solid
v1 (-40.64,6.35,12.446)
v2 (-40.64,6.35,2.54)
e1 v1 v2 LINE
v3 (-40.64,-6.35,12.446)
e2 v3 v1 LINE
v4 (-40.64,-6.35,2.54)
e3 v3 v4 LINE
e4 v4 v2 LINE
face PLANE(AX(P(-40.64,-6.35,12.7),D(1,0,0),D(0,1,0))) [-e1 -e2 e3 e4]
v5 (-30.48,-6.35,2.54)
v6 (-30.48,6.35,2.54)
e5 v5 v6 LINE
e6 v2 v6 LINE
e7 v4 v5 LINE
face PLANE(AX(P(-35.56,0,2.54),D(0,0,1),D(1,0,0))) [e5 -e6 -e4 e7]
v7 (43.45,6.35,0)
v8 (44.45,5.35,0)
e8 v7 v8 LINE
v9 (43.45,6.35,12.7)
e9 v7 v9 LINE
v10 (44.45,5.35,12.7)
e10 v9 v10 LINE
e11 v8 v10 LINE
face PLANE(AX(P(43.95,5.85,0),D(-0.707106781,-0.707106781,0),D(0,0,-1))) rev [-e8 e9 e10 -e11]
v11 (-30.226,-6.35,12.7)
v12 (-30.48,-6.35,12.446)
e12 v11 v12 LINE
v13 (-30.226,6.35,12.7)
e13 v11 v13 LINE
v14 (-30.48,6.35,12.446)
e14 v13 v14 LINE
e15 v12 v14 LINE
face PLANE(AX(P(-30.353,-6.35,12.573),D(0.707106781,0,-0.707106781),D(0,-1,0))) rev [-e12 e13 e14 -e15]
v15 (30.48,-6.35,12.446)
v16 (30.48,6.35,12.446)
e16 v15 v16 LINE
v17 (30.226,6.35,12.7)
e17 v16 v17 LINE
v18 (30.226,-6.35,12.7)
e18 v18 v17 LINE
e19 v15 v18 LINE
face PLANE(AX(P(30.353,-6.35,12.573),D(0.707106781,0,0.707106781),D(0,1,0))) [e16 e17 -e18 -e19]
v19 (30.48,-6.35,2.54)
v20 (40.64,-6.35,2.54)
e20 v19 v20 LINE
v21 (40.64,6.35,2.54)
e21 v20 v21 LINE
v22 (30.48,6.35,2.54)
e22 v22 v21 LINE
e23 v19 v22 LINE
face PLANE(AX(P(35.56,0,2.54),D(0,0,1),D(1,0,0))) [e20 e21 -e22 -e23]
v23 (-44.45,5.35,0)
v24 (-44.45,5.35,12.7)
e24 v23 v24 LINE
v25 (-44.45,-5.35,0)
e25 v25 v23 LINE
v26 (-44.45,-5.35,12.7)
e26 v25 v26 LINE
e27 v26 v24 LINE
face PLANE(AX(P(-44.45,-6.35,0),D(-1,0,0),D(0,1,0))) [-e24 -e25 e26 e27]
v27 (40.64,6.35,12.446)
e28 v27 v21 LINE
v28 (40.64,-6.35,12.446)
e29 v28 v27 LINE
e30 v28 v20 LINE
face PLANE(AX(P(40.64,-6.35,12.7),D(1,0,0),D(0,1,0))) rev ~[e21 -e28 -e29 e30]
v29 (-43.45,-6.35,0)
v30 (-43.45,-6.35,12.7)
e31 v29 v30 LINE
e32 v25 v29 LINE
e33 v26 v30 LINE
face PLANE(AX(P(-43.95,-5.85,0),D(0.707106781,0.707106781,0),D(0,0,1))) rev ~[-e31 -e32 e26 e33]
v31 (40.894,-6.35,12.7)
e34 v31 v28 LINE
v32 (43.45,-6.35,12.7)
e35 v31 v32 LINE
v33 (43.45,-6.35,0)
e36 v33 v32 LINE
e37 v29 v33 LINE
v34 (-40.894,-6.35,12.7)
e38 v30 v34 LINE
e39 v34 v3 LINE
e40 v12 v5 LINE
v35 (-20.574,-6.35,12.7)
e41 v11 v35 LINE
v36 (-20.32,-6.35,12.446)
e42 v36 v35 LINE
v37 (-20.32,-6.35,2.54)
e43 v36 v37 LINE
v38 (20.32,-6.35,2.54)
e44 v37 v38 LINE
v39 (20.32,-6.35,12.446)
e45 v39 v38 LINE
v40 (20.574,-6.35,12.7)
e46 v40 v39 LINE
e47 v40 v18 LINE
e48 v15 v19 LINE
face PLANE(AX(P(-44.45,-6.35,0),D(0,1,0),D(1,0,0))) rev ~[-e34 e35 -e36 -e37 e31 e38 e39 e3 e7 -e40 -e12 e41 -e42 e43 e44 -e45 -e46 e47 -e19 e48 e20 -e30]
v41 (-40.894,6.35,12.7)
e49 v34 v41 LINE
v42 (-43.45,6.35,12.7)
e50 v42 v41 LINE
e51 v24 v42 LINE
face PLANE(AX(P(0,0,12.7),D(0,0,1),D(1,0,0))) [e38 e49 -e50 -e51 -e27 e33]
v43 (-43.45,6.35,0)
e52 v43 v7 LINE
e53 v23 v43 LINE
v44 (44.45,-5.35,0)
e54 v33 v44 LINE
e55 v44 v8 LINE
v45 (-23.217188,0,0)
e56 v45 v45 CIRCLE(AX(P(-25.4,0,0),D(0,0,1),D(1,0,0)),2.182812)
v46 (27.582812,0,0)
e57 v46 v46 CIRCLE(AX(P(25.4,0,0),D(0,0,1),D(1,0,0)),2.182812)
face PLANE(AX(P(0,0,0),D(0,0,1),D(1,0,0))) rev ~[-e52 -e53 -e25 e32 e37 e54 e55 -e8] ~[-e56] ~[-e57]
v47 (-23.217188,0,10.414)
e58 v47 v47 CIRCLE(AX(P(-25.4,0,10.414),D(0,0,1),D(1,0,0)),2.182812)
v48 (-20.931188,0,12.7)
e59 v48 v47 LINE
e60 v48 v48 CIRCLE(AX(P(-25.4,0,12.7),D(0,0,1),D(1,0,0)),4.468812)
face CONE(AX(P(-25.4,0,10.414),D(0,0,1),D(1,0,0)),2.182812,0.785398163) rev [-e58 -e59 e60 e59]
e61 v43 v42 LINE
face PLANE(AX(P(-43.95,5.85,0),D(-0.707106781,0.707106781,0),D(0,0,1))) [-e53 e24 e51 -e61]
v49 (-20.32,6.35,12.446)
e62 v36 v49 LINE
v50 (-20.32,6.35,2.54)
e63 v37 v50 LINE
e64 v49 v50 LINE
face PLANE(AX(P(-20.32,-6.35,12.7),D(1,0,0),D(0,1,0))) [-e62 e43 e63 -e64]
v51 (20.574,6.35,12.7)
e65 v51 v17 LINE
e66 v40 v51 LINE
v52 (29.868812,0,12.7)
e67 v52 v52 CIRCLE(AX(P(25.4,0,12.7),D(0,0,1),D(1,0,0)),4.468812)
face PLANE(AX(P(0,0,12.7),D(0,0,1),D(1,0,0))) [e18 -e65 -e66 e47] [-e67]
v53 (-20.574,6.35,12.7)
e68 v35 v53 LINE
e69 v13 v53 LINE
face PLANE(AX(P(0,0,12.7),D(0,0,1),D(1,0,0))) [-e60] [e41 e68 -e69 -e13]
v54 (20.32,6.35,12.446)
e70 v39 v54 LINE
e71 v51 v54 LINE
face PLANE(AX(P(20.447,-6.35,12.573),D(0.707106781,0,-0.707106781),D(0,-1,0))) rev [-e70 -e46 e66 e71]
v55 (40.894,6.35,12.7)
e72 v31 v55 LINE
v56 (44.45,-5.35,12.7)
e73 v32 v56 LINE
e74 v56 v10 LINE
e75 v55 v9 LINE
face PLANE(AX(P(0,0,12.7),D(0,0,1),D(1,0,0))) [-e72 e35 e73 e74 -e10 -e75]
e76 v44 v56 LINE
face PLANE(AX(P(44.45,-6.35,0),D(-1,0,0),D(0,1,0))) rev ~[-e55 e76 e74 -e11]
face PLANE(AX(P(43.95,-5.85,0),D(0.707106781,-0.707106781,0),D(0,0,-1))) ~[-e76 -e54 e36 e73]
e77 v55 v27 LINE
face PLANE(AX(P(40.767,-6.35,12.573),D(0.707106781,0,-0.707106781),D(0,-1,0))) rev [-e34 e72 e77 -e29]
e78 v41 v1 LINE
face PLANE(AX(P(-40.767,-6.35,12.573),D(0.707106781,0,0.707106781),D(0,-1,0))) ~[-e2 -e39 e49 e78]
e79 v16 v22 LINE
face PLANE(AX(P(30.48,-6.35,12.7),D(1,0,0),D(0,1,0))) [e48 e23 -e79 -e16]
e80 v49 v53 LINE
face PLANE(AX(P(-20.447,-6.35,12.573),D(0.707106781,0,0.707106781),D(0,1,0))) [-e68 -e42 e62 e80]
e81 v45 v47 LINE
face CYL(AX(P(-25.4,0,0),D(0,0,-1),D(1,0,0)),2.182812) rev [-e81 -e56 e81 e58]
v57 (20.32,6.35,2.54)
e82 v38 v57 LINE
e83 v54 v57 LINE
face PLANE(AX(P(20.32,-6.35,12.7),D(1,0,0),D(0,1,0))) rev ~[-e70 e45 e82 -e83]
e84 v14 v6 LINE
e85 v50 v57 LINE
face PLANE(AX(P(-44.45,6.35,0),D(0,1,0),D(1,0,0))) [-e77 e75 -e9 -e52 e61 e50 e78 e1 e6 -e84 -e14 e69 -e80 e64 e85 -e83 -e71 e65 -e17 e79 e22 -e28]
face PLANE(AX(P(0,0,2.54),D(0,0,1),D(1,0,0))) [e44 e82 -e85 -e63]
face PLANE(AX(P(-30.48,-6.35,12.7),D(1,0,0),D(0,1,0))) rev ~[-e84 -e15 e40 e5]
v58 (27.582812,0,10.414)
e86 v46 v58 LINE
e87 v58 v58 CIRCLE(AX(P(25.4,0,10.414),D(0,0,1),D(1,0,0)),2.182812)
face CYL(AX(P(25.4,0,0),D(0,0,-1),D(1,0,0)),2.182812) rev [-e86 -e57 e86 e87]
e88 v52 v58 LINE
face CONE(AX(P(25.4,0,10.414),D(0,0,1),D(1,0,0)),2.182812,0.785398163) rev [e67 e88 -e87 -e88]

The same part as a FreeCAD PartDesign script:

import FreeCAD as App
import Part
import Sketcher
from FreeCAD import Vector
Q = App.Units.Quantity


def edges_at(feature, points):
    """Names of the edges that pass closest to the given points."""
    edges = feature.Shape.Edges
    near = lambda p: min(range(len(edges)), key=lambda i: edges[i].distToShape(Part.Vertex(*p))[0])
    return sorted({f"Edge{near(p) + 1}" for p in points})


def add_polygon(sketch, points):
    """Adds a closed chain of lines whose ends are joined by coincident constraints."""
    first, n = sketch.GeometryCount, len(points)
    for a, b in zip(points, points[1:] + points[:1]):
        sketch.addGeometry(Part.LineSegment(App.Vector(*a, 0), App.Vector(*b, 0)), False)
    for i in range(n):
        sketch.addConstraint(Sketcher.Constraint("Coincident", first + i, 2, first + (i + 1) % n, 1))

doc = App.newDocument("Part")
body = doc.addObject("PartDesign::Body", "Body")

sketch1 = body.newObject("Sketcher::SketchObject", "Sketch")
sketch1.AttachmentSupport = (doc.getObject("XY_Plane"), [""])
sketch1.MapMode = "FlatFace"
add_polygon(sketch1, [(-44.5, 6.3), (-44.5, -6.3), (44.5, -6.3), (44.5, 6.3)])
sketch1.addGeometry(Part.Circle(Vector(-25.4, 0, 0), Vector(0, 0, 1), 2.2), False)
sketch1.addGeometry(Part.Circle(Vector(25.4, 0, 0), Vector(0, 0, 1), 2.2), False)
sketch1.addConstraint(Sketcher.Constraint("Vertical", 0))
sketch1.addConstraint(Sketcher.Constraint("Horizontal", 1))
sketch1.addConstraint(Sketcher.Constraint("Vertical", 2))
sketch1.addConstraint(Sketcher.Constraint("Horizontal", 3))
sketch1.addConstraint(Sketcher.Constraint("Equal", 4, 5))
sketch1.addConstraint(Sketcher.Constraint("Symmetric", 4, 3, 5, 3, -1, 1))
sketch1.addConstraint(Sketcher.Constraint("Symmetric", 0, 2, 2, 2, -1, 1))
sketch1.addConstraint(Sketcher.Constraint("PointOnObject", 4, 3, -1))
sketch1.addConstraint(Sketcher.Constraint("Diameter", 4, Q("0.171875 in")))
sketch1.addConstraint(Sketcher.Constraint("DistanceX", 1, 1, 1, 2, Q("3.5 in")))
sketch1.addConstraint(Sketcher.Constraint("DistanceY", 0, 2, 0, 1, Q("0.5 in")))
sketch1.addConstraint(Sketcher.Constraint("DistanceX", 4, 3, -1, 1, Q("1 in")))
pad1 = body.newObject("PartDesign::Pad", "Pad")
pad1.Profile = sketch1
pad1.Length = Q("0.5 in")
doc.recompute()

chamfer = body.newObject("PartDesign::Chamfer", "Chamfer")
chamfer.Base = (pad1, edges_at(pad1, [
    (44.45, 6.35, 6.35),
    (44.45, -6.35, 6.35),
    (-44.45, -6.35, 6.35),
    (-44.45, 6.35, 6.35),
]))
chamfer.Size = 1
doc.recompute()

chamfer2 = body.newObject("PartDesign::Chamfer", "Chamfer001")
chamfer2.Base = (chamfer, edges_at(chamfer, [(-27.583, 0, 12.7), (23.217, 0, 12.7)]))
chamfer2.Size = Q("0.09 in")

sketch2 = body.newObject("Sketcher::SketchObject", "Sketch001")
sketch2.AttachmentSupport = (doc.getObject("XY_Plane"), [""])
sketch2.MapMode = "FlatFace"
sketch2.AttachmentOffset = App.Placement(Vector(0, 0, 0.5 * 25.4), App.Rotation())
add_polygon(sketch2, [(-41, 6), (-41, -6), (-30, -6), (-30, 6)])
add_polygon(sketch2, [(30, 6), (30, -6), (41, -6), (41, 6)])
add_polygon(sketch2, [(-20, 6), (-20, -6), (20, -6), (20, 6)])
sketch2.addConstraint(Sketcher.Constraint("Vertical", 0))
sketch2.addConstraint(Sketcher.Constraint("Horizontal", 1))
sketch2.addConstraint(Sketcher.Constraint("Vertical", 2))
sketch2.addConstraint(Sketcher.Constraint("Horizontal", 3))
sketch2.addConstraint(Sketcher.Constraint("Vertical", 4))
sketch2.addConstraint(Sketcher.Constraint("Horizontal", 5))
sketch2.addConstraint(Sketcher.Constraint("Vertical", 6))
sketch2.addConstraint(Sketcher.Constraint("Horizontal", 7))
sketch2.addConstraint(Sketcher.Constraint("Vertical", 8))
sketch2.addConstraint(Sketcher.Constraint("Horizontal", 9))
sketch2.addConstraint(Sketcher.Constraint("Vertical", 10))
sketch2.addConstraint(Sketcher.Constraint("Horizontal", 11))
sketch2.addConstraint(Sketcher.Constraint("Symmetric", 2, 2, 4, 2, -1, 1))
sketch2.addConstraint(Sketcher.Constraint("Symmetric", 0, 2, 6, 2, -1, 1))
sketch2.addConstraint(Sketcher.Constraint("Symmetric", 8, 2, 10, 2, -1, 1))
sketch2.addConstraint(Sketcher.Constraint("Horizontal", 1, 2, 4, 2))
sketch2.addConstraint(Sketcher.Constraint("Horizontal", 5, 2, 8, 2))
sketch2.addConstraint(Sketcher.Constraint("DistanceX", 1, 1, 1, 2, Q("0.4 in")))
sketch2.addConstraint(Sketcher.Constraint("DistanceX", 9, 1, 9, 2, Q("1.6 in")))
sketch2.addConstraint(Sketcher.Constraint("DistanceY", 0, 2, 0, 1, Q("0.5 in")))
sketch2.addConstraint(Sketcher.Constraint("DistanceX", 8, 2, 4, 2, Q("2 in")))
pocket1 = body.newObject("PartDesign::Pocket", "Pocket")
pocket1.Profile = sketch2
pocket1.Length = Q("0.4 in")
doc.recompute()

chamfer3 = body.newObject("PartDesign::Chamfer", "Chamfer002")
chamfer3.Base = (pocket1, edges_at(pocket1, [
    (-40.64, 0, 12.7),
    (-30.48, 0, 12.7),
    (-20.32, 0, 12.7),
    (20.32, 0, 12.7),
    (30.48, 0, 12.7),
    (40.64, 0, 12.7),
]))
chamfer3.Size = Q("0.01 in")

doc.recompute()
